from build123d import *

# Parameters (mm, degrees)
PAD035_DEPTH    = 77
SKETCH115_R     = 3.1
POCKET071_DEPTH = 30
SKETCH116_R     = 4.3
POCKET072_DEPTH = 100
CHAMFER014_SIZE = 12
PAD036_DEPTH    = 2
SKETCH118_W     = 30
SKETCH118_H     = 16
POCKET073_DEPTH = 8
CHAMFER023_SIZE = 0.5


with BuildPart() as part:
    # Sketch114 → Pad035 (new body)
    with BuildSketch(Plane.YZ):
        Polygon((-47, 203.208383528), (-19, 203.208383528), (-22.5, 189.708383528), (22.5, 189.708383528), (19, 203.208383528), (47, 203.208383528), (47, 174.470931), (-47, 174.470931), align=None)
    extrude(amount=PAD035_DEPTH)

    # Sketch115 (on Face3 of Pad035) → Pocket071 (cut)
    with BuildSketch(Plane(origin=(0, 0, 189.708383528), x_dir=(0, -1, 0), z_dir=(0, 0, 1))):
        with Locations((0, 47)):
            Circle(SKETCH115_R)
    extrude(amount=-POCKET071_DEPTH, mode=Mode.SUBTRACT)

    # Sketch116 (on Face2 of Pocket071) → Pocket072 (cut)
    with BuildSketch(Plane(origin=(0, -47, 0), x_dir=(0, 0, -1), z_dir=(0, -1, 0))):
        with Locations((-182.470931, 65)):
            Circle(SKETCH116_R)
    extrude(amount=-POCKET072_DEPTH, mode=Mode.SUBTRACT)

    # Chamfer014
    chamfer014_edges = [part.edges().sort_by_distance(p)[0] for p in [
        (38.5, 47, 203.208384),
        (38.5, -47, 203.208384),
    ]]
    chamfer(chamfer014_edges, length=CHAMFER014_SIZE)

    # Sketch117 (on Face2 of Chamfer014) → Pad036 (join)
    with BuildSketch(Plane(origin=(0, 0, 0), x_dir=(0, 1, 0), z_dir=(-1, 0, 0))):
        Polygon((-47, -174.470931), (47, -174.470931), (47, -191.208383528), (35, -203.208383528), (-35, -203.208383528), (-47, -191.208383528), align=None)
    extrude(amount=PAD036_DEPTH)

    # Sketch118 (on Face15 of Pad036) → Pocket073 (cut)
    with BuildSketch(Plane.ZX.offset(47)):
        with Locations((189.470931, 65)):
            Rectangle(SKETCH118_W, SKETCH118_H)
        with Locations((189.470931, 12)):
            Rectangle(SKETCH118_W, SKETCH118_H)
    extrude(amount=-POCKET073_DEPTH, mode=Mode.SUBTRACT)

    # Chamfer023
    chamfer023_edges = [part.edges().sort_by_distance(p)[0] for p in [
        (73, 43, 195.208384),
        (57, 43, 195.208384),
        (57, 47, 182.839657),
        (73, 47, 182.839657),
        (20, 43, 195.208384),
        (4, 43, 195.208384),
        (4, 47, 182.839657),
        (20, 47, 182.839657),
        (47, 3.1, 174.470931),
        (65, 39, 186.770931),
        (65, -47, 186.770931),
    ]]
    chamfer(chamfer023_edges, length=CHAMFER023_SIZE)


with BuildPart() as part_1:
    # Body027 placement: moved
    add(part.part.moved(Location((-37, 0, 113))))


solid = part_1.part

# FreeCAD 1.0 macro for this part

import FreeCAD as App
import Part
import Sketcher

V = App.Vector


def edges_at(feature, points):
    """Names of the edges that pass closest to the given points."""
    edges = feature.Shape.Edges
    near = lambda p: min(range(len(edges)), key=lambda i: edges[i].distToShape(Part.Vertex(*p))[0])
    return sorted({f"Edge{near(p) + 1}" for p in points})

doc = App.newDocument("Part")
params = doc.addObject("Spreadsheet::Sheet", "Params")
for row, (alias, value) in enumerate([
    ("sketch1_width", "28 mm"),
    ("sketch1_width2", "94 mm"),
    ("sketch1_width3", "45 mm"),
    ("pad1_length", "77 mm"),
    ("sketch2_diameter", "6.2 mm"),
    ("pocket1_length", "30 mm"),
    ("sketch3_diameter", "8.6 mm"),
    ("pocket2_length", "100 mm"),
    ("chamfer_size", "12 mm"),
    ("sketch4_width", "94 mm"),
    ("sketch4_width2", "70 mm"),
    ("pad2_length", "2 mm"),
    ("sketch5_width", "16 mm"),
    ("sketch5_height", "30 mm"),
    ("pocket3_length", "8 mm"),
    ("chamfer2_size", "0.5 mm"),
], start=1):
    params.set(f"A{row}", alias)
    params.set(f"B{row}", "=" + value)
    params.setAlias(f"B{row}", alias)

body = doc.addObject("PartDesign::Body", "Body")

# Sketch on YZ plane
sketch1 = body.newObject("Sketcher::SketchObject", "Sketch")
sketch1.AttachmentSupport = (doc.getObject("YZ_Plane"), [""])
sketch1.MapMode = "FlatFace"
sketch1.addGeometry(Part.LineSegment(V(-19, 203.208384, 0), V(-47, 203.208384, 0)), False)
sketch1.addGeometry(Part.LineSegment(V(-47, 203.208384, 0), V(-47, 174.470931, 0)), False)
sketch1.addGeometry(Part.LineSegment(V(-47, 174.470931, 0), V(47, 174.470931, 0)), False)
sketch1.addGeometry(Part.LineSegment(V(47, 174.470931, 0), V(47, 203.208384, 0)), False)
sketch1.addGeometry(Part.LineSegment(V(47, 203.208384, 0), V(19, 203.208384, 0)), False)
sketch1.addGeometry(Part.LineSegment(V(19, 203.208384, 0), V(22.5, 189.708384, 0)), False)
sketch1.addGeometry(Part.LineSegment(V(22.5, 189.708384, 0), V(-22.5, 189.708384, 0)), False)
sketch1.addGeometry(Part.LineSegment(V(-22.5, 189.708384, 0), V(-19, 203.208384, 0)), False)
sketch1.addConstraint(Sketcher.Constraint("Coincident", 0, 2, 1, 1))
sketch1.addConstraint(Sketcher.Constraint("Coincident", 1, 2, 2, 1))
sketch1.addConstraint(Sketcher.Constraint("Coincident", 2, 2, 3, 1))
sketch1.addConstraint(Sketcher.Constraint("Coincident", 3, 2, 4, 1))
sketch1.addConstraint(Sketcher.Constraint("Coincident", 4, 2, 5, 1))
sketch1.addConstraint(Sketcher.Constraint("Coincident", 5, 2, 6, 1))
sketch1.addConstraint(Sketcher.Constraint("Coincident", 6, 2, 7, 1))
sketch1.addConstraint(Sketcher.Constraint("Coincident", 7, 2, 0, 1))
sketch1.addConstraint(Sketcher.Constraint("Horizontal", 0))
sketch1.addConstraint(Sketcher.Constraint("Vertical", 1))
sketch1.addConstraint(Sketcher.Constraint("Horizontal", 2))
sketch1.addConstraint(Sketcher.Constraint("Vertical", 3))
sketch1.addConstraint(Sketcher.Constraint("Horizontal", 4))
sketch1.addConstraint(Sketcher.Constraint("Horizontal", 6))
sketch1.addConstraint(Sketcher.Constraint("Symmetric", 0, 2, 3, 2, -2))
sketch1.addConstraint(Sketcher.Constraint("Equal", 0, 4))
sketch1.addConstraint(Sketcher.Constraint("Equal", 5, 7))
sketch1.addConstraint(Sketcher.Constraint("DistanceX", 0, 2, 0, 1, 28.0))
sketch1.addConstraint(Sketcher.Constraint("DistanceX", 2, 1, 2, 2, 94.0))
sketch1.addConstraint(Sketcher.Constraint("DistanceX", 6, 2, 6, 1, 45.0))
sketch1.addConstraint(Sketcher.Constraint("DistanceY", 5, 2, 4, 2, 13.5))
sketch1.addConstraint(Sketcher.Constraint("DistanceY", 1, 2, 1, 1, 28.737453))
sketch1.addConstraint(Sketcher.Constraint("DistanceY", -1, 1, 1, 2, 174.470931))
sketch1.setExpression("Constraints[17]", "Params.sketch1_width")
sketch1.setExpression("Constraints[18]", "Params.sketch1_width2")
sketch1.setExpression("Constraints[19]", "Params.sketch1_width3")
pad1 = body.newObject("PartDesign::Pad", "Pad")
pad1.Profile = sketch1
pad1.setExpression("Length", "Params.pad1_length")

# Sketch on XY plane
sketch2 = body.newObject("Sketcher::SketchObject", "Sketch001")
sketch2.AttachmentSupport = (doc.getObject("XY_Plane"), [""])
sketch2.MapMode = "FlatFace"
sketch2.AttachmentOffset = App.Placement(V(0, 0, 189.708384), App.Rotation())
sketch2.addGeometry(Part.Circle(V(47, 0, 0), V(0, 0, 1), 3.1), False)
sketch2.addConstraint(Sketcher.Constraint("PointOnObject", 0, 3, -1))
sketch2.addConstraint(Sketcher.Constraint("Diameter", 0, 6.2))
sketch2.addConstraint(Sketcher.Constraint("DistanceX", -1, 1, 0, 3, 47.0))
sketch2.setExpression("Constraints[1]", "Params.sketch2_diameter")
pocket1 = body.newObject("PartDesign::Pocket", "Pocket")
pocket1.Profile = sketch2
pocket1.setExpression("Length", "Params.pocket1_length")

# Sketch on XZ plane
sketch3 = body.newObject("Sketcher::SketchObject", "Sketch002")
sketch3.AttachmentSupport = (doc.getObject("XZ_Plane"), [""])
sketch3.MapMode = "FlatFace"
sketch3.AttachmentOffset = App.Placement(V(0, 0, 47), App.Rotation())
sketch3.addGeometry(Part.Circle(V(65, 182.470931, 0), V(0, 0, 1), 4.3), False)
sketch3.addConstraint(Sketcher.Constraint("Diameter", 0, 8.6))
sketch3.addConstraint(Sketcher.Constraint("DistanceX", -1, 1, 0, 3, 65.0))
sketch3.addConstraint(Sketcher.Constraint("DistanceY", -1, 1, 0, 3, 182.470931))
sketch3.setExpression("Constraints[0]", "Params.sketch3_diameter")
pocket2 = body.newObject("PartDesign::Pocket", "Pocket001")
pocket2.Profile = sketch3
pocket2.setExpression("Length", "Params.pocket2_length")
doc.recompute()

chamfer = body.newObject("PartDesign::Chamfer", "Chamfer")
chamfer.Base = (pocket2, edges_at(pocket2, [(38.5, 47, 203.208), (38.5, -47, 203.208)]))
chamfer.setExpression("Size", "Params.chamfer_size")

# Sketch on YZ plane
sketch4 = body.newObject("Sketcher::SketchObject", "Sketch003")
sketch4.AttachmentSupport = (doc.getObject("YZ_Plane"), [""])
sketch4.MapMode = "FlatFace"
sketch4.addGeometry(Part.LineSegment(V(47, 174.470931, 0), V(-47, 174.470931, 0)), False)
sketch4.addGeometry(Part.LineSegment(V(-47, 174.470931, 0), V(-47, 191.208384, 0)), False)
sketch4.addGeometry(Part.LineSegment(V(-47, 191.208384, 0), V(-35, 203.208384, 0)), False)
sketch4.addGeometry(Part.LineSegment(V(-35, 203.208384, 0), V(35, 203.208384, 0)), False)
sketch4.addGeometry(Part.LineSegment(V(35, 203.208384, 0), V(47, 191.208384, 0)), False)
sketch4.addGeometry(Part.LineSegment(V(47, 191.208384, 0), V(47, 174.470931, 0)), False)
sketch4.addConstraint(Sketcher.Constraint("Coincident", 0, 2, 1, 1))
sketch4.addConstraint(Sketcher.Constraint("Coincident", 1, 2, 2, 1))
sketch4.addConstraint(Sketcher.Constraint("Coincident", 2, 2, 3, 1))
sketch4.addConstraint(Sketcher.Constraint("Coincident", 3, 2, 4, 1))
sketch4.addConstraint(Sketcher.Constraint("Coincident", 4, 2, 5, 1))
sketch4.addConstraint(Sketcher.Constraint("Coincident", 5, 2, 0, 1))
sketch4.addConstraint(Sketcher.Constraint("Horizontal", 0))
sketch4.addConstraint(Sketcher.Constraint("Vertical", 1))
sketch4.addConstraint(Sketcher.Constraint("Horizontal", 3))
sketch4.addConstraint(Sketcher.Constraint("Vertical", 5))
sketch4.addConstraint(Sketcher.Constraint("Symmetric", 1, 2, 4, 2, -2))
sketch4.addConstraint(Sketcher.Constraint("Perpendicular", 2, 4))
sketch4.addConstraint(Sketcher.Constraint("Equal", 2, 4))
sketch4.addConstraint(Sketcher.Constraint("DistanceX", 0, 2, 0, 1, 94.0))
sketch4.addConstraint(Sketcher.Constraint("DistanceX", 3, 1, 3, 2, 70.0))
sketch4.addConstraint(Sketcher.Constraint("DistanceY", 1, 1, 1, 2, 16.737453))
sketch4.addConstraint(Sketcher.Constraint("DistanceY", -1, 1, 0, 2, 174.470931))
sketch4.setExpression("Constraints[13]", "Params.sketch4_width")
sketch4.setExpression("Constraints[14]", "Params.sketch4_width2")
pad2 = body.newObject("PartDesign::Pad", "Pad001")
pad2.Profile = sketch4
pad2.setExpression("Length", "Params.pad2_length")
pad2.Reversed = True

# Sketch on XZ plane
sketch5 = body.newObject("Sketcher::SketchObject", "Sketch004")
sketch5.AttachmentSupport = (doc.getObject("XZ_Plane"), [""])
sketch5.MapMode = "FlatFace"
sketch5.AttachmentOffset = App.Placement(V(0, 0, -47), App.Rotation())
sketch5.addGeometry(Part.LineSegment(V(73, 174.470931, 0), V(57, 174.470931, 0)), False)
sketch5.addGeometry(Part.LineSegment(V(57, 174.470931, 0), V(57, 204.470931, 0)), False)
sketch5.addGeometry(Part.LineSegment(V(57, 204.470931, 0), V(73, 204.470931, 0)), False)
sketch5.addGeometry(Part.LineSegment(V(73, 204.470931, 0), V(73, 174.470931, 0)), False)
sketch5.addGeometry(Part.LineSegment(V(20, 174.470931, 0), V(4, 174.470931, 0)), False)
sketch5.addGeometry(Part.LineSegment(V(4, 174.470931, 0), V(4, 204.470931, 0)), False)
sketch5.addGeometry(Part.LineSegment(V(4, 204.470931, 0), V(20, 204.470931, 0)), False)
sketch5.addGeometry(Part.LineSegment(V(20, 204.470931, 0), V(20, 174.470931, 0)), False)
sketch5.addConstraint(Sketcher.Constraint("Coincident", 0, 2, 1, 1))
sketch5.addConstraint(Sketcher.Constraint("Coincident", 1, 2, 2, 1))
sketch5.addConstraint(Sketcher.Constraint("Coincident", 2, 2, 3, 1))
sketch5.addConstraint(Sketcher.Constraint("Coincident", 3, 2, 0, 1))
sketch5.addConstraint(Sketcher.Constraint("Coincident", 4, 2, 5, 1))
sketch5.addConstraint(Sketcher.Constraint("Coincident", 5, 2, 6, 1))
sketch5.addConstraint(Sketcher.Constraint("Coincident", 6, 2, 7, 1))
sketch5.addConstraint(Sketcher.Constraint("Coincident", 7, 2, 4, 1))
sketch5.addConstraint(Sketcher.Constraint("Horizontal", 0))
sketch5.addConstraint(Sketcher.Constraint("Vertical", 1))
sketch5.addConstraint(Sketcher.Constraint("Horizontal", 2))
sketch5.addConstraint(Sketcher.Constraint("Vertical", 3))
sketch5.addConstraint(Sketcher.Constraint("Horizontal", 4))
sketch5.addConstraint(Sketcher.Constraint("Vertical", 5))
sketch5.addConstraint(Sketcher.Constraint("Horizontal", 6))
sketch5.addConstraint(Sketcher.Constraint("Vertical", 7))
sketch5.addConstraint(Sketcher.Constraint("Horizontal", 3, 2, 4, 2))
sketch5.addConstraint(Sketcher.Constraint("Horizontal", 2, 2, 5, 2))
sketch5.addConstraint(Sketcher.Constraint("Equal", 2, 4))
sketch5.addConstraint(Sketcher.Constraint("DistanceX", 0, 2, 0, 1, 16.0))
sketch5.addConstraint(Sketcher.Constraint("DistanceY", 1, 1, 1, 2, 30.0))
sketch5.addConstraint(Sketcher.Constraint("DistanceX", -1, 1, 0, 2, 57.0))
sketch5.addConstraint(Sketcher.Constraint("DistanceX", -1, 1, 4, 2, 4.0))
sketch5.addConstraint(Sketcher.Constraint("DistanceY", -1, 1, 0, 2, 174.470931))
sketch5.setExpression("Constraints[19]", "Params.sketch5_width")
sketch5.setExpression("Constraints[20]", "Params.sketch5_height")
pocket3 = body.newObject("PartDesign::Pocket", "Pocket002")
pocket3.Profile = sketch5
pocket3.setExpression("Length", "Params.pocket3_length")
pocket3.Reversed = True
doc.recompute()

chamfer2 = body.newObject("PartDesign::Chamfer", "Chamfer001")
chamfer2.Base = (pocket3, edges_at(pocket3, [
    (73, 43, 195.208),
    (57, 43, 195.208),
    (57, 47, 182.84),
    (73, 47, 182.84),
    (20, 43, 195.208),
    (4, 43, 195.208),
    (4, 47, 182.84),
    (20, 47, 182.84),
    (47, 3.1, 174.471),
    (65, 39, 186.771),
    (65, -47, 186.771),
]))
chamfer2.setExpression("Size", "Params.chamfer2_size")
body2 = doc.addObject("PartDesign::Body", "Body001")
doc.recompute()

body.Placement = App.Placement(V(-37, 0, 113), App.Rotation(V(0, 0, 1), 0))
boolean = body2.newObject("PartDesign::Boolean", "Boolean")
boolean.Type = "Fuse"
boolean.addObjects([body])

doc.recompute()
